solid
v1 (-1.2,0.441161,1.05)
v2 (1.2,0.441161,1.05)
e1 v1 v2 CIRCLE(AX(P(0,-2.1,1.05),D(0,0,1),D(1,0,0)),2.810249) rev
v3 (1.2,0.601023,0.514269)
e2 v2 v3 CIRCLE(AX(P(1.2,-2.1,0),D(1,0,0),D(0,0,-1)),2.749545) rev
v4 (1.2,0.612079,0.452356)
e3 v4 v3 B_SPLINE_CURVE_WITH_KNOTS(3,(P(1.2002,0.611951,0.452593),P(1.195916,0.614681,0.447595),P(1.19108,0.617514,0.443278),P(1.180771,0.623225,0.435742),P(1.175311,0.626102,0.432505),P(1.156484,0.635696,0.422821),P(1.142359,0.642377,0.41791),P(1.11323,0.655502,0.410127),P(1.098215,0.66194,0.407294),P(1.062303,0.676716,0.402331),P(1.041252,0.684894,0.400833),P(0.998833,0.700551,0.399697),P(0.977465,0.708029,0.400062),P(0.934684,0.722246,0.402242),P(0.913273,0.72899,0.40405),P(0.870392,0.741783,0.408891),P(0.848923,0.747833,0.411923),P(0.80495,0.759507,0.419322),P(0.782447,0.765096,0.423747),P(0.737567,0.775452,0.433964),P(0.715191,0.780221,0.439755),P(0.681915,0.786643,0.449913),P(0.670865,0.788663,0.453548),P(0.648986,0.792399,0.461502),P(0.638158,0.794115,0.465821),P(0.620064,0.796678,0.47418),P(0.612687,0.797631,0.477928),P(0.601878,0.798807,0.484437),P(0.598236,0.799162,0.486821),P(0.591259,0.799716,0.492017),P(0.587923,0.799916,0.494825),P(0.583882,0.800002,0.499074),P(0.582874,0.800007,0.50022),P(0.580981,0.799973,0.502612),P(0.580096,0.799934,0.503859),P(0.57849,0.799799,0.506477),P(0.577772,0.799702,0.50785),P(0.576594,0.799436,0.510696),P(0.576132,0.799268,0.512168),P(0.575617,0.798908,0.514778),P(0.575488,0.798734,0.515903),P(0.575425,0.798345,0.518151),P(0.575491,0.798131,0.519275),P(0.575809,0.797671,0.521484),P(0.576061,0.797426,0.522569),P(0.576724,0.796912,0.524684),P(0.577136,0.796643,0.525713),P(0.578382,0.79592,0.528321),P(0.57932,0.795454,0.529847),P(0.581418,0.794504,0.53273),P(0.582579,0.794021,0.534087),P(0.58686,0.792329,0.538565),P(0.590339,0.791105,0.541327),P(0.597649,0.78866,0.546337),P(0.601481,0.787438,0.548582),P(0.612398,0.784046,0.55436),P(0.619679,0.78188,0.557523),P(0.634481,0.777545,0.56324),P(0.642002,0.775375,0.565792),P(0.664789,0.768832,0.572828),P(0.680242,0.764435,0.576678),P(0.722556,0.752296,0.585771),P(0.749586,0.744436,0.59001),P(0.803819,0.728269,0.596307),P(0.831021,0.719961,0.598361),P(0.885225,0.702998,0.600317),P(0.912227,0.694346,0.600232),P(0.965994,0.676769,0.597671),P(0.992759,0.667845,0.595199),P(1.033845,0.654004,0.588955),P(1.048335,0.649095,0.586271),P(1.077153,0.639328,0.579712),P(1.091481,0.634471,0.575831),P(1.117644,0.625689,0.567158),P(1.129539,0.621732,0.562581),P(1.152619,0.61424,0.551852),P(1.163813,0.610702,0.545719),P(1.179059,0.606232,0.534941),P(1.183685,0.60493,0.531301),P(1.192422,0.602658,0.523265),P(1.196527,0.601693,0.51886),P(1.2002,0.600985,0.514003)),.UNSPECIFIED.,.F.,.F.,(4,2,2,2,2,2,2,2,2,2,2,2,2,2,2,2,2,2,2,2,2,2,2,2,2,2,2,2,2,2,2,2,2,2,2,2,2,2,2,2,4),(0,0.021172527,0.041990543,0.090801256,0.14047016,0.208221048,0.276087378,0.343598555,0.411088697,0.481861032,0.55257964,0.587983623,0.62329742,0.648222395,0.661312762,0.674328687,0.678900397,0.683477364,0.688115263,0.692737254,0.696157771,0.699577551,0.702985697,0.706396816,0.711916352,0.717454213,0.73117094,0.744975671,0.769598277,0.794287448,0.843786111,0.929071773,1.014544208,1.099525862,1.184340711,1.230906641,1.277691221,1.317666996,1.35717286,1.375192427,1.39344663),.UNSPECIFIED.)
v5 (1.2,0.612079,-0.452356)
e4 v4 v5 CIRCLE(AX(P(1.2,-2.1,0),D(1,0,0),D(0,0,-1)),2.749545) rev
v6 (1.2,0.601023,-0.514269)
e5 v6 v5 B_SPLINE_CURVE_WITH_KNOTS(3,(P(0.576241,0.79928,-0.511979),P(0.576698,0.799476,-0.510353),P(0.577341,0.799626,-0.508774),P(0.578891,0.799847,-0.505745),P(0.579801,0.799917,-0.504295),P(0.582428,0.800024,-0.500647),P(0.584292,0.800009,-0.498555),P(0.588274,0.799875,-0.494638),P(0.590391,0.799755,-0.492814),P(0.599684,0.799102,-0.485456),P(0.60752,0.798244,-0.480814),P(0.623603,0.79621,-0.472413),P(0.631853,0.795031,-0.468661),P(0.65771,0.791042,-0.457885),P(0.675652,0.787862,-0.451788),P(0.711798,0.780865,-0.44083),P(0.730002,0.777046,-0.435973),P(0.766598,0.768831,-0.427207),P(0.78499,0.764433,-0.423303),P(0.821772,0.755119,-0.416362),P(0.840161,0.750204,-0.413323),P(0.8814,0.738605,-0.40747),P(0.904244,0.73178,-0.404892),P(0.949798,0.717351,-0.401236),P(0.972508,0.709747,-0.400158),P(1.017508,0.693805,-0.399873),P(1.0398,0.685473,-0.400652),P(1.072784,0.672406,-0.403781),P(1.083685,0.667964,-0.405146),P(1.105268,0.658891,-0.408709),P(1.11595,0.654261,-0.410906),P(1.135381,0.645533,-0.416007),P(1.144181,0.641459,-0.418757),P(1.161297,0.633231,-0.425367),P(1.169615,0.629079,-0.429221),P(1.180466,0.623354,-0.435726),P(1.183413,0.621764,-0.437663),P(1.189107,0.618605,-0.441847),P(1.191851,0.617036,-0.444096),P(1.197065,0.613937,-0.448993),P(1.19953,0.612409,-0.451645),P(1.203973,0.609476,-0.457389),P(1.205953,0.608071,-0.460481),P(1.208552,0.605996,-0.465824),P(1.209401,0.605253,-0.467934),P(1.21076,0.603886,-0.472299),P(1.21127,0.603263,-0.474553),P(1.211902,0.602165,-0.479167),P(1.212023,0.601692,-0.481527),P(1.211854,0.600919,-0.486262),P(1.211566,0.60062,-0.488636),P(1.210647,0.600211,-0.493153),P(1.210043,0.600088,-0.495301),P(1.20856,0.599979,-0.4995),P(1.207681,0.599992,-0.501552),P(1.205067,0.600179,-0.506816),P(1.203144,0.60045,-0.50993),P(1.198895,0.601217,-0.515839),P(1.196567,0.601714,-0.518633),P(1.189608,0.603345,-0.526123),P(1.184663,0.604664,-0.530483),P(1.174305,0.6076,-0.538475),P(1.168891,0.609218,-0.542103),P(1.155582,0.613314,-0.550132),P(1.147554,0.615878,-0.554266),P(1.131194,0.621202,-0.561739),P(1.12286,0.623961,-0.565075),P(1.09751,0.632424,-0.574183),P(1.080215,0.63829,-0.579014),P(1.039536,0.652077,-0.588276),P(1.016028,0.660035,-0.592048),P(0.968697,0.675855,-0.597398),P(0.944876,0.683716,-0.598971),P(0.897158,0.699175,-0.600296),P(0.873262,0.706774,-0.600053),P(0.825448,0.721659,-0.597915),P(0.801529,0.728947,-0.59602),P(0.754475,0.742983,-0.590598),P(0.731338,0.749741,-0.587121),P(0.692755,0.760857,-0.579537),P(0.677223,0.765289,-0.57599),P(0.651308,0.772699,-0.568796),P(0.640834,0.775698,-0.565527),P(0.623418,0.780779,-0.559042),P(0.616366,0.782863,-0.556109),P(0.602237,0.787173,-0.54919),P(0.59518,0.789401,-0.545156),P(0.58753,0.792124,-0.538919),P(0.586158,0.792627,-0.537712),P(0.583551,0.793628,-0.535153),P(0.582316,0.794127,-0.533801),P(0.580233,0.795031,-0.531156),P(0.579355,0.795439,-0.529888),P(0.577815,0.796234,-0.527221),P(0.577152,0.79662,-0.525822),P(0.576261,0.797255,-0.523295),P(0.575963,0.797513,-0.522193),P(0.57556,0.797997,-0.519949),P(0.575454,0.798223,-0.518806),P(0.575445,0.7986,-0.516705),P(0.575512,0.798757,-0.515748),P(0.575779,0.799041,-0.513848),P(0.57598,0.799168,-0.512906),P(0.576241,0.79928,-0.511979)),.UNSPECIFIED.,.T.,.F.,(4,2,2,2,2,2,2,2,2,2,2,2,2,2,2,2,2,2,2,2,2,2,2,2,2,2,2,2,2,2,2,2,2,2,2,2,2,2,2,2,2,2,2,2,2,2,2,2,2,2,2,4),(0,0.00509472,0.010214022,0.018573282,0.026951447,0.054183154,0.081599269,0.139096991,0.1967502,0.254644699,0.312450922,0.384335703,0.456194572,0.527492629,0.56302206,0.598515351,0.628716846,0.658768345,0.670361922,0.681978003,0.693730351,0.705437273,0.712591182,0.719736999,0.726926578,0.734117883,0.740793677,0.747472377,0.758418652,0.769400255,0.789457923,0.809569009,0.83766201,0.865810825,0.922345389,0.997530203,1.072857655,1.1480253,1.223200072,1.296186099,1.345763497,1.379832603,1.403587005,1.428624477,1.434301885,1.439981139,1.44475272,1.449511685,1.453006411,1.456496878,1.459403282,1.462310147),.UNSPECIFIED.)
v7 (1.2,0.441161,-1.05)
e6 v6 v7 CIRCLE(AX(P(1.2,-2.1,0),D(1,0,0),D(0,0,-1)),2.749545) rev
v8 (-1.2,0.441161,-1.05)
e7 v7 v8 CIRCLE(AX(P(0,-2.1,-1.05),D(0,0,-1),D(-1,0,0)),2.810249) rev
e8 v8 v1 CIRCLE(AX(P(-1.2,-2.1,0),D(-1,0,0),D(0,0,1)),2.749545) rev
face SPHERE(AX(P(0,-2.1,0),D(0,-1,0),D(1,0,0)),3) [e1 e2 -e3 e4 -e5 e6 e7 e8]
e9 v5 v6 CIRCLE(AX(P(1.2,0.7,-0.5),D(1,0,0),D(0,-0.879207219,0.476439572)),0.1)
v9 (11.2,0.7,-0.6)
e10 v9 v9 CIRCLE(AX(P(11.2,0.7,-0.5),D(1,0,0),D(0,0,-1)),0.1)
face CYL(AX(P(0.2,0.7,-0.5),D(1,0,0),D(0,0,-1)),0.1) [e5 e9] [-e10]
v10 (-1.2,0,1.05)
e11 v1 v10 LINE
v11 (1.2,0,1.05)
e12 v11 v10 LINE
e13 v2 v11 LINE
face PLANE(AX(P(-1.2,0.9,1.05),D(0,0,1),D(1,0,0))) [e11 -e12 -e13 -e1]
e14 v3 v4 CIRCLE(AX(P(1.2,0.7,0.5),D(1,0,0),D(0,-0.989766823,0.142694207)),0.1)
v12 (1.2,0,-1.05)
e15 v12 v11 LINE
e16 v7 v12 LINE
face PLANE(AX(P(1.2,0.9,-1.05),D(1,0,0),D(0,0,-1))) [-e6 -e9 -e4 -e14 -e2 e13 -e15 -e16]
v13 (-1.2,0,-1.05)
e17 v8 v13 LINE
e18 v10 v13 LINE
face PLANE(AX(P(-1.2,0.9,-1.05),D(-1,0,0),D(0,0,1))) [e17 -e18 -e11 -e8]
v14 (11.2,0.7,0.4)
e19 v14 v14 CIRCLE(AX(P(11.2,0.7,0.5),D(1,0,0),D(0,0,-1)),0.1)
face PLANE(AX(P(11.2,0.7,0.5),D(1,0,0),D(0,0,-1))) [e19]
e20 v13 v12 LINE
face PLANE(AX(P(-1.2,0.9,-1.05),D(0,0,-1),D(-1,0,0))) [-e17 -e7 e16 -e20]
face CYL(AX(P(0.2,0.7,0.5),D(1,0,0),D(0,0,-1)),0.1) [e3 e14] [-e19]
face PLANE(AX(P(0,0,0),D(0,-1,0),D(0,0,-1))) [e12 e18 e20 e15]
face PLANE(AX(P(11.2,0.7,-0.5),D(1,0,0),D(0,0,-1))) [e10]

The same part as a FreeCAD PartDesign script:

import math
import FreeCAD as App
import Part
import Sketcher
Q = App.Units.Quantity

doc = App.newDocument("Part")
body = doc.addObject("PartDesign::Body", "Body")

# Sketch on XY plane
sketch1 = body.newObject("Sketcher::SketchObject", "Sketch")
sketch1.AttachmentSupport = (doc.getObject("XY_Plane"), [""])
sketch1.MapMode = "FlatFace"
sketch1.addGeometry([
    Part.LineSegment(App.Vector(0, 0, 0), App.Vector(1.75, 0, 0)),
    Part.LineSegment(App.Vector(1.75, 0, 0), App.Vector(1.75, 0.336699, 0)),
    Part.ArcOfCircle(Part.Circle(App.Vector(0, -2.1, 0), App.Vector(0, 0, 1), 3), math.radians(54.314665), math.radians(90)),
    Part.LineSegment(App.Vector(0, 0.9, 0), App.Vector(0, 0, 0)),
], False)
sketch1.addConstraint([
    Sketcher.Constraint("Coincident", 0, 2, 1, 1),
    Sketcher.Constraint("Coincident", 1, 2, 2, 1),
    Sketcher.Constraint("Coincident", 2, 2, 3, 1),
    Sketcher.Constraint("Coincident", 3, 2, 0, 1),
    Sketcher.Constraint("Horizontal", 0),
    Sketcher.Constraint("Vertical", 1),
    Sketcher.Constraint("Vertical", 3),
    Sketcher.Constraint("Coincident", 3, 2, -1, 1),
    Sketcher.Constraint("PointOnObject", 2, 3, -2),
    Sketcher.Constraint("Radius", 2, Q("3 mm")),
    Sketcher.Constraint("DistanceY", 3, 2, 3, 1, Q("0.9 mm")),
    Sketcher.Constraint("DistanceX", 0, 1, 0, 2, Q("1.75 mm")),
])
revolution = body.newObject("PartDesign::Revolution", "Revolution")
revolution.Profile = sketch1
revolution.ReferenceAxis = (sketch1, ["V_Axis"])
revolution.Angle = 360

# Sketch on XZ plane
sketch2 = body.newObject("Sketcher::SketchObject", "Sketch001")
sketch2.AttachmentSupport = (doc.getObject("XZ_Plane"), [""])
sketch2.MapMode = "FlatFace"
sketch2.addGeometry([
    Part.LineSegment(App.Vector(-3.253, 3.253, 0), App.Vector(-3.253, -3.253, 0)),  # 0
    Part.LineSegment(App.Vector(-3.253, -3.253, 0), App.Vector(3.253, -3.253, 0)),  # 1
    Part.LineSegment(App.Vector(3.253, -3.253, 0), App.Vector(3.253, 3.253, 0)),  # 2
    Part.LineSegment(App.Vector(3.253, 3.253, 0), App.Vector(-3.253, 3.253, 0)),  # 3
    Part.LineSegment(App.Vector(1.2, -1.05, 0), App.Vector(-1.2, -1.05, 0)),  # 4
    Part.LineSegment(App.Vector(-1.2, -1.05, 0), App.Vector(-1.2, 1.05, 0)),  # 5
    Part.LineSegment(App.Vector(-1.2, 1.05, 0), App.Vector(1.2, 1.05, 0)),  # 6
    Part.LineSegment(App.Vector(1.2, 1.05, 0), App.Vector(1.2, -1.05, 0)),  # 7
], False)
sketch2.addConstraint([
    Sketcher.Constraint("Coincident", 0, 2, 1, 1),
    Sketcher.Constraint("Coincident", 1, 2, 2, 1),
    Sketcher.Constraint("Coincident", 2, 2, 3, 1),
    Sketcher.Constraint("Coincident", 3, 2, 0, 1),
    Sketcher.Constraint("Coincident", 4, 2, 5, 1),
    Sketcher.Constraint("Coincident", 5, 2, 6, 1),
    Sketcher.Constraint("Coincident", 6, 2, 7, 1),
    Sketcher.Constraint("Coincident", 7, 2, 4, 1),
    Sketcher.Constraint("Vertical", 0),
    Sketcher.Constraint("Horizontal", 1),
    Sketcher.Constraint("Vertical", 2),
    Sketcher.Constraint("Horizontal", 3),
    Sketcher.Constraint("Horizontal", 4),
    Sketcher.Constraint("Vertical", 5),
    Sketcher.Constraint("Horizontal", 6),
    Sketcher.Constraint("Vertical", 7),
    Sketcher.Constraint("Symmetric", 0, 2, 2, 2, -1, 1),
    Sketcher.Constraint("Symmetric", 4, 2, 6, 2, -1, 1),
    Sketcher.Constraint("Equal", 3, 0),
    Sketcher.Constraint("DistanceX", 4, 2, 4, 1, Q("2.4 mm")),
    Sketcher.Constraint("DistanceY", 5, 1, 5, 2, Q("2.1 mm")),
    Sketcher.Constraint("DistanceX", 1, 1, 1, 2, Q("6.506 mm")),
])
pocket1 = body.newObject("PartDesign::Pocket", "Pocket")
pocket1.Profile = sketch2
pocket1.Type = "ThroughAll"

# Sketch on YZ plane
sketch3 = body.newObject("Sketcher::SketchObject", "Sketch002")
sketch3.AttachmentSupport = (doc.getObject("YZ_Plane"), [""])
sketch3.MapMode = "FlatFace"
sketch3.AttachmentOffset = App.Placement(App.Vector(0, 0, 1.2), App.Rotation())
sketch3.addGeometry([
    Part.Circle(App.Vector(0.7, 0.5, 0), App.Vector(0, 0, 1), 0.1),
    Part.Circle(App.Vector(0.7, -0.5, 0), App.Vector(0, 0, 1), 0.1),
], False)
sketch3.addConstraint([
    Sketcher.Constraint("Equal", 0, 1),
    Sketcher.Constraint("Symmetric", 0, 3, 1, 3, -1),
    Sketcher.Constraint("Diameter", 0, Q("0.2 mm")),
    Sketcher.Constraint("DistanceY", 1, 3, 0, 3, Q("1 mm")),
    Sketcher.Constraint("DistanceX", -1, 1, 0, 3, Q("0.7 mm")),
])
pad1 = body.newObject("PartDesign::Pad", "Pad")
pad1.Profile = sketch3
pad1.Type = "TwoLengths"
pad1.Length = 10
pad1.Length2 = 1

doc.recompute()
